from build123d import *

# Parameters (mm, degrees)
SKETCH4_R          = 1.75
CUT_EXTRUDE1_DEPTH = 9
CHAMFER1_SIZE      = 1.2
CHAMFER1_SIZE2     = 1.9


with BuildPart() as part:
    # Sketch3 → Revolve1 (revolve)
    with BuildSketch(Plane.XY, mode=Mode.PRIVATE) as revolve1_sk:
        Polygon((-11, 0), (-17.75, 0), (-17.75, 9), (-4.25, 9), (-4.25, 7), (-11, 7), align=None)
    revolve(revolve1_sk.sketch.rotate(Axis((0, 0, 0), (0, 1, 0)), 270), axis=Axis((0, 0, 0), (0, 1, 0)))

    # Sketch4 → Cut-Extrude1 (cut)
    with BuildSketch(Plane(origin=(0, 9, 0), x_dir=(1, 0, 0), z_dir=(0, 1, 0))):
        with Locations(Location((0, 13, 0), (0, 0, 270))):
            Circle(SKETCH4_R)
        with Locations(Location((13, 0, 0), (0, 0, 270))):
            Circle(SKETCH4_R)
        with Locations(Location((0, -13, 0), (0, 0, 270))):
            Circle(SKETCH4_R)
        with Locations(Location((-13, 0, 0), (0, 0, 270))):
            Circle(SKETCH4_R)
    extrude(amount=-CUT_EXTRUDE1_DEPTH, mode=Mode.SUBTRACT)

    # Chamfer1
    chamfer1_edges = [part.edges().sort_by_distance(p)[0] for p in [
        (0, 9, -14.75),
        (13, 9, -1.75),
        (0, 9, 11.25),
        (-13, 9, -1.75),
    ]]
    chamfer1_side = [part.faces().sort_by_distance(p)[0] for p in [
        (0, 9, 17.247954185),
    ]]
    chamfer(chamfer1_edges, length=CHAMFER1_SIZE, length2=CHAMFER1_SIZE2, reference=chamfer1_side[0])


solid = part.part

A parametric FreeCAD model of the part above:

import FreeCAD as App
import Part
import Sketcher
from FreeCAD import Vector


def edges_at(feature, points):
    """Names of the edges that pass closest to the given points."""
    edges = feature.Shape.Edges
    near = lambda p: min(range(len(edges)), key=lambda i: edges[i].distToShape(Part.Vertex(*p))[0])
    return sorted({f"Edge{near(p) + 1}" for p in points})

doc = App.newDocument("Part")
body = doc.addObject("PartDesign::Body", "Body")

sketch1 = doc.addObject("Sketcher::SketchObject", "Sketch")
body.addObject(sketch1)
sketch1.AttachmentSupport = (doc.XY_Plane, [""])
sketch1.MapMode = "FlatFace"
sketch1.addGeometry([
    Part.LineSegment(Vector(-17.8, 0, 0), Vector(-11, 0, 0)),
    Part.LineSegment(Vector(-11, 0, 0), Vector(-11, 7, 0)),
    Part.LineSegment(Vector(-11, 7, 0), Vector(-4.2, 7, 0)),
    Part.LineSegment(Vector(-4.2, 7, 0), Vector(-4.2, 9, 0)),
    Part.LineSegment(Vector(-4.2, 9, 0), Vector(-17.8, 9, 0)),
    Part.LineSegment(Vector(-17.8, 9, 0), Vector(-17.8, 0, 0)),
], False)
sketch1.addConstraint([
    Sketcher.Constraint("Coincident", 0, 2, 1, 1),
    Sketcher.Constraint("Coincident", 1, 2, 2, 1),
    Sketcher.Constraint("Coincident", 2, 2, 3, 1),
    Sketcher.Constraint("Coincident", 3, 2, 4, 1),
    Sketcher.Constraint("Coincident", 4, 2, 5, 1),
    Sketcher.Constraint("Coincident", 5, 2, 0, 1),
    Sketcher.Constraint("Horizontal", 0),
    Sketcher.Constraint("Vertical", 1),
    Sketcher.Constraint("Horizontal", 2),
    Sketcher.Constraint("Vertical", 3),
    Sketcher.Constraint("Horizontal", 4),
    Sketcher.Constraint("Vertical", 5),
    Sketcher.Constraint("PointOnObject", 0, 2, -1),
    Sketcher.Constraint("Equal", 0, 2),
    Sketcher.Constraint("DistanceY", 1, 1, 1, 2, 7.0),
    Sketcher.Constraint("DistanceY", 3, 1, 3, 2, 2.0),
    Sketcher.Constraint("DistanceX", 4, 2, 4, 1, 13.5),
    Sketcher.Constraint("DistanceX", 0, 2, -1, 1, 11.0),
])
revolution = doc.addObject("PartDesign::Revolution", "Revolution")
body.addObject(revolution)
revolution.Profile = sketch1
revolution.ReferenceAxis = (sketch1, ["V_Axis"])
revolution.Angle = 360

sketch2 = doc.addObject("Sketcher::SketchObject", "Sketch001")
body.addObject(sketch2)
sketch2.AttachmentSupport = (doc.XZ_Plane, [""])
sketch2.MapMode = "FlatFace"
sketch2.AttachmentOffset = App.Placement(Vector(0, 0, -9), App.Rotation())
sketch2.addGeometry([
    Part.Circle(Vector(0, -13, 0), Vector(0, 0, 1), 1.8),
    Part.Circle(Vector(13, 0, 0), Vector(0, 0, 1), 1.8),
    Part.Circle(Vector(0, 13, 0), Vector(0, 0, 1), 1.8),
    Part.Circle(Vector(-13, 0, 0), Vector(0, 0, 1), 1.8),
], False)
sketch2.addConstraint([
    Sketcher.Constraint("Equal", 0, 1),
    Sketcher.Constraint("Equal", 1, 2),
    Sketcher.Constraint("Equal", 2, 3),
    Sketcher.Constraint("Symmetric", 0, 3, 2, 3, -1, 1),
    Sketcher.Constraint("Symmetric", 1, 3, 3, 3, -1, 1),
    Sketcher.Constraint("PointOnObject", 0, 3, -2),
    Sketcher.Constraint("PointOnObject", 1, 3, -1),
    Sketcher.Constraint("Diameter", 0, 3.5),
    Sketcher.Constraint("DistanceY", 0, 3, -1, 1, 13.0),
    Sketcher.Constraint("DistanceX", -1, 1, 1, 3, 13.0),
])
pocket1 = doc.addObject("PartDesign::Pocket", "Pocket")
body.addObject(pocket1)
pocket1.Profile = sketch2
pocket1.Length = 9
pocket1.Reversed = True
doc.recompute()

chamfer = doc.addObject("PartDesign::Chamfer", "Chamfer")
body.addObject(chamfer)
chamfer.Base = (pocket1, edges_at(pocket1, [
    (0, 9, -14.75),
    (13, 9, -1.75),
    (0, 9, 11.25),
    (-13, 9, -1.75),
]))
chamfer.ChamferType = "Two distances"
chamfer.Size = 1.2
chamfer.Size2 = 1.9
chamfer.FlipDirection = True

doc.recompute()
